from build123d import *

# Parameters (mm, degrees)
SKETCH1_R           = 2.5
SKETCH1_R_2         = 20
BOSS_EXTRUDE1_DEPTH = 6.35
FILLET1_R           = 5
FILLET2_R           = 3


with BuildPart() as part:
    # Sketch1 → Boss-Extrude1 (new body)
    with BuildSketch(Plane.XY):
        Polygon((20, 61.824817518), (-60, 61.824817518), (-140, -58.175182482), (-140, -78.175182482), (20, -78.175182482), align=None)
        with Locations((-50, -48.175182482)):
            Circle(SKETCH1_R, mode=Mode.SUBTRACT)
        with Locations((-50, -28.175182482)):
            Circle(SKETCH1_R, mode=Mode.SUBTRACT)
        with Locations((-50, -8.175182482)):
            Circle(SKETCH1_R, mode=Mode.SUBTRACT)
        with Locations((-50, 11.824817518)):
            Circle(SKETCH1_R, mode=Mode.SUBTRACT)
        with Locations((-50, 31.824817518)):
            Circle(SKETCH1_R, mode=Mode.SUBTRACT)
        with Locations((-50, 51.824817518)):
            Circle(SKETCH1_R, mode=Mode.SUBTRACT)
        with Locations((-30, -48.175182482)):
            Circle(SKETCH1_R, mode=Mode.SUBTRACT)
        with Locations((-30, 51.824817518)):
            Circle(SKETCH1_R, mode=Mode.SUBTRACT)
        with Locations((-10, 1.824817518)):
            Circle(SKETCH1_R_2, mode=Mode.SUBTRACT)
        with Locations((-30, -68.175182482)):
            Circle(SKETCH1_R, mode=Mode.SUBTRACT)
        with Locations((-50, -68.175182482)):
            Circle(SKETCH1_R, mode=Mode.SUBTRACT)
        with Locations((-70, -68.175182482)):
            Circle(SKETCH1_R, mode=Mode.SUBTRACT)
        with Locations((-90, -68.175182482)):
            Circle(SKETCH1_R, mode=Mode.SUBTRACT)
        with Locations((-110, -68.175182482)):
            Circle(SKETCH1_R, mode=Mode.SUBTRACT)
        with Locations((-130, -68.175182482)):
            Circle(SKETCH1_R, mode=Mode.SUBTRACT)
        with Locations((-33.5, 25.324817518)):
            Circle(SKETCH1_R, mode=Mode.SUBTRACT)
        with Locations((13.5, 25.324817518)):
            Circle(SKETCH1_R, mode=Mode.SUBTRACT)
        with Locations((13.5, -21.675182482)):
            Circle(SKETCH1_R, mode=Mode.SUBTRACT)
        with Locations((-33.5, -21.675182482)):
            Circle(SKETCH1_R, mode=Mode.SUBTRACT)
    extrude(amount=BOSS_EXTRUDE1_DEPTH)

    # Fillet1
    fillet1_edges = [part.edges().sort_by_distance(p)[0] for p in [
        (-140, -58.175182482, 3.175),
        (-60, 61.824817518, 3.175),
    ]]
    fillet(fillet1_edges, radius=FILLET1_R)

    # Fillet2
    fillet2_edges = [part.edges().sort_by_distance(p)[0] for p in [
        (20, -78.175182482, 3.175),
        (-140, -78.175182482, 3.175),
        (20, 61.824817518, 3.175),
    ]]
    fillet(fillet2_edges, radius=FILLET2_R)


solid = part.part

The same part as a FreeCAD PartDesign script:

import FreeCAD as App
import Part
import Sketcher

V = App.Vector


def edges_at(feature, points):
    """Names of the edges that pass closest to the given points."""
    edges = feature.Shape.Edges
    near = lambda p: min(range(len(edges)), key=lambda i: edges[i].distToShape(Part.Vertex(*p))[0])
    return sorted({f"Edge{near(p) + 1}" for p in points})


def add_polygon(sketch, points):
    """Adds a closed chain of lines whose ends are joined by coincident constraints."""
    first, n = sketch.GeometryCount, len(points)
    for a, b in zip(points, points[1:] + points[:1]):
        sketch.addGeometry(Part.LineSegment(App.Vector(*a, 0), App.Vector(*b, 0)), False)
    for i in range(n):
        sketch.addConstraint(Sketcher.Constraint("Coincident", first + i, 2, first + (i + 1) % n, 1))

doc = App.newDocument("Part")
body = doc.addObject("PartDesign::Body", "Body")

# Sketch on XY plane
sketch1 = doc.addObject("Sketcher::SketchObject", "Sketch")
body.addObject(sketch1)
sketch1.AttachmentSupport = (doc.XY_Plane, [""])
sketch1.MapMode = "FlatFace"
add_polygon(sketch1, [(20, 61.824818), (-60, 61.824818), (-140, -58.175182), (-140, -78.175182), (20, -78.175182)])  # lines 0-4
sketch1.addGeometry(Part.Circle(V(-130, -68.175182, 0), V(0, 0, 1), 2.5), False)  # 5
sketch1.addGeometry(Part.Circle(V(-110, -68.175182, 0), V(0, 0, 1), 2.5), False)  # 6
sketch1.addGeometry(Part.Circle(V(-90, -68.175182, 0), V(0, 0, 1), 2.5), False)  # 7
sketch1.addGeometry(Part.Circle(V(-70, -68.175182, 0), V(0, 0, 1), 2.5), False)  # 8
sketch1.addGeometry(Part.Circle(V(-50, -68.175182, 0), V(0, 0, 1), 2.5), False)  # 9
sketch1.addGeometry(Part.Circle(V(-30, -68.175182, 0), V(0, 0, 1), 2.5), False)  # 10
sketch1.addGeometry(Part.Circle(V(-50, -48.175182, 0), V(0, 0, 1), 2.5), False)  # 11
sketch1.addGeometry(Part.Circle(V(-30, -48.175182, 0), V(0, 0, 1), 2.5), False)  # 12
sketch1.addGeometry(Part.Circle(V(-50, -28.175182, 0), V(0, 0, 1), 2.5), False)  # 13
sketch1.addGeometry(Part.Circle(V(-33.5, -21.675182, 0), V(0, 0, 1), 2.5), False)  # 14
sketch1.addGeometry(Part.Circle(V(13.5, -21.675182, 0), V(0, 0, 1), 2.5), False)  # 15
sketch1.addGeometry(Part.Circle(V(-50, -8.175182, 0), V(0, 0, 1), 2.5), False)  # 16
sketch1.addGeometry(Part.Circle(V(-50, 11.824818, 0), V(0, 0, 1), 2.5), False)  # 17
sketch1.addGeometry(Part.Circle(V(-10, 1.824818, 0), V(0, 0, 1), 20), False)  # 18
sketch1.addGeometry(Part.Circle(V(-50, 31.824818, 0), V(0, 0, 1), 2.5), False)  # 19
sketch1.addGeometry(Part.Circle(V(-33.5, 25.324818, 0), V(0, 0, 1), 2.5), False)  # 20
sketch1.addGeometry(Part.Circle(V(-50, 51.824818, 0), V(0, 0, 1), 2.5), False)  # 21
sketch1.addGeometry(Part.Circle(V(-30, 51.824818, 0), V(0, 0, 1), 2.5), False)  # 22
sketch1.addGeometry(Part.Circle(V(13.5, 25.324818, 0), V(0, 0, 1), 2.5), False)  # 23
sketch1.addConstraint([
    Sketcher.Constraint("Horizontal", 0),
    Sketcher.Constraint("Vertical", 2),
    Sketcher.Constraint("Horizontal", 3),
    Sketcher.Constraint("Vertical", 4),
    Sketcher.Constraint("Equal", 5, 6),
    Sketcher.Constraint("Equal", 6, 7),
    Sketcher.Constraint("Equal", 7, 8),
    Sketcher.Constraint("Equal", 8, 9),
    Sketcher.Constraint("Equal", 9, 10),
    Sketcher.Constraint("Equal", 10, 11),
    Sketcher.Constraint("Equal", 11, 12),
    Sketcher.Constraint("Equal", 12, 13),
    Sketcher.Constraint("Equal", 13, 14),
    Sketcher.Constraint("Equal", 14, 15),
    Sketcher.Constraint("Equal", 15, 16),
    Sketcher.Constraint("Equal", 16, 17),
    Sketcher.Constraint("Equal", 17, 19),
    Sketcher.Constraint("Equal", 19, 20),
    Sketcher.Constraint("Equal", 20, 21),
    Sketcher.Constraint("Equal", 21, 22),
    Sketcher.Constraint("Equal", 22, 23),
    Sketcher.Constraint("Horizontal", 5, 3, 6, 3),
    Sketcher.Constraint("Horizontal", 6, 3, 7, 3),
    Sketcher.Constraint("Horizontal", 7, 3, 8, 3),
    Sketcher.Constraint("Horizontal", 8, 3, 9, 3),
    Sketcher.Constraint("Horizontal", 9, 3, 10, 3),
    Sketcher.Constraint("Horizontal", 11, 3, 12, 3),
    Sketcher.Constraint("Horizontal", 14, 3, 15, 3),
    Sketcher.Constraint("Horizontal", 21, 3, 22, 3),
    Sketcher.Constraint("Horizontal", 20, 3, 23, 3),
    Sketcher.Constraint("Vertical", 9, 3, 11, 3),
    Sketcher.Constraint("Vertical", 10, 3, 12, 3),
    Sketcher.Constraint("Vertical", 11, 3, 13, 3),
    Sketcher.Constraint("Vertical", 13, 3, 16, 3),
    Sketcher.Constraint("Vertical", 16, 3, 17, 3),
    Sketcher.Constraint("Vertical", 17, 3, 19, 3),
    Sketcher.Constraint("Vertical", 14, 3, 20, 3),
    Sketcher.Constraint("Vertical", 19, 3, 21, 3),
    Sketcher.Constraint("Vertical", 12, 3, 22, 3),
    Sketcher.Constraint("Vertical", 15, 3, 23, 3),
    Sketcher.Constraint("Diameter", 5, 5.0),
    Sketcher.Constraint("Diameter", 18, 40.0),
    Sketcher.Constraint("DistanceX", 0, 2, 0, 1, 80.0),
    Sketcher.Constraint("DistanceX", 3, 1, 3, 2, 160.0),
    Sketcher.Constraint("DistanceY", 2, 2, 2, 1, 20.0),
    Sketcher.Constraint("DistanceY", 4, 1, 4, 2, 140.0),
    Sketcher.Constraint("DistanceX", 5, 3, -1, 1, 130.0),
    Sketcher.Constraint("DistanceX", 6, 3, -1, 1, 110.0),
    Sketcher.Constraint("DistanceX", 7, 3, -1, 1, 90.0),
    Sketcher.Constraint("DistanceX", 8, 3, -1, 1, 70.0),
    Sketcher.Constraint("DistanceX", 9, 3, -1, 1, 50.0),
    Sketcher.Constraint("DistanceX", 10, 3, -1, 1, 30.0),
    Sketcher.Constraint("DistanceX", 18, 3, -1, 1, 10.0),
    Sketcher.Constraint("DistanceX", 0, 2, -1, 1, 60.0),
    Sketcher.Constraint("DistanceY", 9, 3, 11, 3, 20.0),
    Sketcher.Constraint("DistanceY", 11, 3, 13, 3, 20.0),
    Sketcher.Constraint("DistanceX", 14, 3, 15, 3, 47.0),
    Sketcher.Constraint("DistanceY", 13, 3, 16, 3, 20.0),
    Sketcher.Constraint("DistanceY", 16, 3, 17, 3, 20.0),
    Sketcher.Constraint("DistanceY", 16, 3, 18, 3, 10.0),
    Sketcher.Constraint("DistanceY", 17, 3, 19, 3, 20.0),
    Sketcher.Constraint("DistanceY", 14, 3, 20, 3, 47.0),
    Sketcher.Constraint("DistanceY", 19, 3, 21, 3, 20.0),
    Sketcher.Constraint("DistanceY", 21, 3, 0, 2, 10.0),
    Sketcher.Constraint("DistanceX", 14, 3, -1, 1, 33.5),
    Sketcher.Constraint("DistanceY", 13, 3, 14, 3, 6.5),
    Sketcher.Constraint("DistanceY", 5, 3, -1, 1, 68.175182),
])
pad1 = doc.addObject("PartDesign::Pad", "Pad")
body.addObject(pad1)
pad1.Profile = sketch1
pad1.Length = 6.35
doc.recompute()

fillet = doc.addObject("PartDesign::Fillet", "Fillet")
body.addObject(fillet)
fillet.Base = (pad1, edges_at(pad1, [(-140, -58.175, 3.175), (-60, 61.825, 3.175)]))
fillet.Radius = 5
doc.recompute()

fillet2 = doc.addObject("PartDesign::Fillet", "Fillet001")
body.addObject(fillet2)
fillet2.Base = (fillet, edges_at(fillet, [(20, -78.175, 3.175), (-140, -78.175, 3.175), (20, 61.825, 3.175)]))
fillet2.Radius = 3

doc.recompute()
